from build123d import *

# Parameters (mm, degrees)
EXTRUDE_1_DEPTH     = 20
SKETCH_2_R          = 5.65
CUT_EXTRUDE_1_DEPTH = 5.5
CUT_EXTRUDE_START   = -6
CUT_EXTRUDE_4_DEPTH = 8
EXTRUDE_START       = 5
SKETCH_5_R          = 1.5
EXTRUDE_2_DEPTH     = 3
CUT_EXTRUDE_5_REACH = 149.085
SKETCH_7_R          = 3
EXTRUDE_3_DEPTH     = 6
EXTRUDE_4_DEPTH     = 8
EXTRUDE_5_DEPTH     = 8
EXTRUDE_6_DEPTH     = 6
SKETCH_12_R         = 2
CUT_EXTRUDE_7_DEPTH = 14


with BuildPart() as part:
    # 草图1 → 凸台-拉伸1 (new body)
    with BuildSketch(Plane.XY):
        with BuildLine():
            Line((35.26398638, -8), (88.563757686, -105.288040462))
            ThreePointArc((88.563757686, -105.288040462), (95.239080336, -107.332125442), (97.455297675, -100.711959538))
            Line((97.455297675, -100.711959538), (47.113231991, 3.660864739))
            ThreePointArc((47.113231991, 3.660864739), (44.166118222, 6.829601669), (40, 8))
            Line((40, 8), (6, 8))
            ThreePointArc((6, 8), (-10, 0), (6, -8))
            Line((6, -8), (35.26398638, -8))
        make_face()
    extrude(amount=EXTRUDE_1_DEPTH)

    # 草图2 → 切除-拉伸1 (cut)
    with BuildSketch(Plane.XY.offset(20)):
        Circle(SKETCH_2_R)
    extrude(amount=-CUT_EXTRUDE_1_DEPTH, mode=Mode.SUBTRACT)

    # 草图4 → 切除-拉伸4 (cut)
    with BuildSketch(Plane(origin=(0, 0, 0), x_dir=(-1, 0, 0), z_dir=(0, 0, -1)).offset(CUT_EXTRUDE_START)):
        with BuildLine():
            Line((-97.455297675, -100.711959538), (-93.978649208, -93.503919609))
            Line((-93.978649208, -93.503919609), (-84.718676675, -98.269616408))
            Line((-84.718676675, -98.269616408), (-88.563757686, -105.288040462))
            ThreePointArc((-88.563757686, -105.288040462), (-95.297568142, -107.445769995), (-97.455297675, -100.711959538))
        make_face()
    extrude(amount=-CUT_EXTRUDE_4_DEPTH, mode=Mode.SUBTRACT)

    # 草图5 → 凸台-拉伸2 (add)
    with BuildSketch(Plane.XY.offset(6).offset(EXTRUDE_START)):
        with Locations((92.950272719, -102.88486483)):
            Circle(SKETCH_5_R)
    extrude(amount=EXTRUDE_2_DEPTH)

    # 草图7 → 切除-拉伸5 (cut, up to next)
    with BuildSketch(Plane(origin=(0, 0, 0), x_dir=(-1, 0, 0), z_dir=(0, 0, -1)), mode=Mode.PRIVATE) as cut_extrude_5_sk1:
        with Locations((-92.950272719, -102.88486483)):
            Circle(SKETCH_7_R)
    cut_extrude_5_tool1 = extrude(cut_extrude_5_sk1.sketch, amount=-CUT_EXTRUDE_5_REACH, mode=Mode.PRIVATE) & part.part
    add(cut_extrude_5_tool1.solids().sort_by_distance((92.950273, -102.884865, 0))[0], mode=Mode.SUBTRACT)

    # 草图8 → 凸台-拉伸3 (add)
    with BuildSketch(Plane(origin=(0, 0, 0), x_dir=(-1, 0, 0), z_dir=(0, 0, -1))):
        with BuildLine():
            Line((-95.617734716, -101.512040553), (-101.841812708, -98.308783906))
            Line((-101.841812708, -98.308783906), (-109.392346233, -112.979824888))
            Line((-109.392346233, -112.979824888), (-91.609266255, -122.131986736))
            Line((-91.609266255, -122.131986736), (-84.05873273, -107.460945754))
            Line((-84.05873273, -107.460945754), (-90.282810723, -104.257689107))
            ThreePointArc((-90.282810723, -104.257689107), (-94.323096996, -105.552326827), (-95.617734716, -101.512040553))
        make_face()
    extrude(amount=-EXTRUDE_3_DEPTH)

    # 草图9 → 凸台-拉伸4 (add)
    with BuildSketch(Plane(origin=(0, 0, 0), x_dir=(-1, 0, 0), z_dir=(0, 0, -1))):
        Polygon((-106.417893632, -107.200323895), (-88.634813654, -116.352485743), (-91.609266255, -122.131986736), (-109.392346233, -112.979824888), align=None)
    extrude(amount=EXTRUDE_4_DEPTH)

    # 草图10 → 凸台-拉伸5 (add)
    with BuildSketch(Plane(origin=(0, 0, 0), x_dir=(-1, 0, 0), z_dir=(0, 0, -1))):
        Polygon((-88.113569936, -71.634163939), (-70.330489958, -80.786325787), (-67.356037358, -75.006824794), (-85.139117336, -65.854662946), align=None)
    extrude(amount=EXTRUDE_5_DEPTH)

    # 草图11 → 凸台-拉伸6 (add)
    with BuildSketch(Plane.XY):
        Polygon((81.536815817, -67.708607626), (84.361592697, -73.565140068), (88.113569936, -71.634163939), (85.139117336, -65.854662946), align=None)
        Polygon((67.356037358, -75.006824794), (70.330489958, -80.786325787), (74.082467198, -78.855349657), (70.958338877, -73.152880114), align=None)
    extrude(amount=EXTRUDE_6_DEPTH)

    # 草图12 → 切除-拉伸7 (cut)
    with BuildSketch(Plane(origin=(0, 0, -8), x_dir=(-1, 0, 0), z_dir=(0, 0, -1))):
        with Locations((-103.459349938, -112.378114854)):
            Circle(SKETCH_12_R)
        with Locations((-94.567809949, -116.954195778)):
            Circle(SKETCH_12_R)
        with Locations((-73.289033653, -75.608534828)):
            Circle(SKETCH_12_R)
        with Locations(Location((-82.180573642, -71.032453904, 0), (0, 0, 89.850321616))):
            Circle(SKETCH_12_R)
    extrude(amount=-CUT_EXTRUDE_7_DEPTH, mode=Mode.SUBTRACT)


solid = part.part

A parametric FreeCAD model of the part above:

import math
import FreeCAD as App
import Part
import Sketcher
from FreeCAD import Vector

doc = App.newDocument("Part")
params = doc.addObject("Spreadsheet::Sheet", "Params")
for row, (alias, value) in enumerate([
    ("sketch1_radius", "8 mm"),
    ("sketch1_radius2", "10 mm"),
    ("sketch1_width", "34 mm"),
    ("pad1_length", "20 mm"),
    ("sketch2_diameter", "11.3 mm"),
    ("pocket1_length", "5.5 mm"),
    ("sketch3_radius", "5 mm"),
    ("pocket2_length", "8 mm"),
    ("sketch4_diameter", "3 mm"),
    ("pad2_length", "3 mm"),
    ("sketch5_diameter", "6 mm"),
    ("sketch6_radius", "3 mm"),
    ("sketch6_length", "7 mm"),
    ("sketch6_length2", "16.5 mm"),
    ("pad3_length", "6 mm"),
    ("sketch7_length", "20 mm"),
    ("sketch7_length2", "6.5 mm"),
    ("pad4_length", "8 mm"),
    ("sketch8_length", "20 mm"),
    ("sketch8_length2", "6.5 mm"),
    ("pad5_length", "8 mm"),
    ("sketch9_length", "6.5 mm"),
    ("pad6_length", "6 mm"),
    ("sketch10_diameter", "4 mm"),
    ("pocket4_length", "14 mm"),
], start=1):
    params.set(f"A{row}", alias)
    params.set(f"B{row}", "=" + value)
    params.setAlias(f"B{row}", alias)

body = doc.addObject("PartDesign::Body", "Body")

# Sketch on XY plane
sketch1 = body.newObject("Sketcher::SketchObject", "Sketch")
sketch1.AttachmentSupport = (doc.getObject("XY_Plane"), [""])
sketch1.MapMode = "FlatFace"
sketch1.addGeometry([
    Part.LineSegment(Vector(35, -8, 0), Vector(89, -105, 0)),  # 0
    Part.ArcOfCircle(Part.Circle(Vector(93, -103, 0), Vector(0, 0, 1), 5), math.radians(-151), math.radians(26)),  # 1
    Part.LineSegment(Vector(97, -101, 0), Vector(47, 4, 0)),  # 2
    Part.ArcOfCircle(Part.Circle(Vector(40, 0, 0), Vector(0, 0, 1), 8), math.radians(27), math.radians(90)),  # 3
    Part.LineSegment(Vector(40, 8, 0), Vector(6, 8, 0)),  # 4
    Part.ArcOfCircle(Part.Circle(Vector(0, 0, 0), Vector(0, 0, 1), 10), math.radians(53), math.radians(307)),  # 5
    Part.LineSegment(Vector(6, -8, 0), Vector(35, -8, 0)),  # 6
], False)
sketch1.addConstraint([
    Sketcher.Constraint("Tangent", 0, 2, 1, 1),
    Sketcher.Constraint("Tangent", 1, 2, 2, 1),
    Sketcher.Constraint("Coincident", 2, 2, 3, 1),
    Sketcher.Constraint("Tangent", 3, 2, 4, 1),
    Sketcher.Constraint("Coincident", 4, 2, 5, 1),
    Sketcher.Constraint("Coincident", 5, 2, 6, 1),
    Sketcher.Constraint("Coincident", 6, 2, 0, 1),
    Sketcher.Constraint("Horizontal", 4),
    Sketcher.Constraint("Horizontal", 6),
    Sketcher.Constraint("Coincident", 5, 3, -1, 1),
    Sketcher.Constraint("PointOnObject", 3, 3, -1),
    Sketcher.Constraint("Vertical", 4, 2, 5, 2),
    Sketcher.Constraint("Radius", 3, 8.0),
    Sketcher.Constraint("Radius", 5, 10.0),
    Sketcher.Constraint("DistanceX", 4, 2, 4, 1, 34.0),
    Sketcher.Constraint("Radius", 1, 5.001676),
    Sketcher.Constraint("Distance", 0, 110.931639),
    Sketcher.Constraint("Distance", 2, 115.879291),
    Sketcher.Constraint("DistanceX", 6, 1, 6, 2, 29.263986),
    Sketcher.Constraint("DistanceY", 0, 2, -1, 1, 105.28804),
])
sketch1.setExpression("Constraints[12]", "Params.sketch1_radius")
sketch1.setExpression("Constraints[13]", "Params.sketch1_radius2")
sketch1.setExpression("Constraints[14]", "Params.sketch1_width")
pad1 = body.newObject("PartDesign::Pad", "Pad")
pad1.Profile = sketch1
pad1.setExpression("Length", "Params.pad1_length")

# Sketch on XY plane
sketch2 = body.newObject("Sketcher::SketchObject", "Sketch001")
sketch2.AttachmentSupport = (doc.getObject("XY_Plane"), [""])
sketch2.MapMode = "FlatFace"
sketch2.AttachmentOffset = App.Placement(Vector(0, 0, 20), App.Rotation())
sketch2.addGeometry(Part.Circle(Vector(0, 0, 0), Vector(0, 0, 1), 6), False)
sketch2.addConstraint([
    Sketcher.Constraint("Coincident", 0, 3, -1, 1),
    Sketcher.Constraint("Diameter", 0, 11.3),
])
sketch2.setExpression("Constraints[1]", "Params.sketch2_diameter")
pocket1 = body.newObject("PartDesign::Pocket", "Pocket")
pocket1.Profile = sketch2
pocket1.setExpression("Length", "Params.pocket1_length")

# Sketch on XY plane
sketch3 = body.newObject("Sketcher::SketchObject", "Sketch002")
sketch3.AttachmentSupport = (doc.getObject("XY_Plane"), [""])
sketch3.MapMode = "FlatFace"
sketch3.AttachmentOffset = App.Placement(Vector(0, 0, 6), App.Rotation())
sketch3.addGeometry([
    Part.LineSegment(Vector(94, -94, 0), Vector(97, -101, 0)),
    Part.ArcOfCircle(Part.Circle(Vector(93, -103, 0), Vector(0, 0, 1), 5), math.radians(-153), math.radians(27)),
    Part.LineSegment(Vector(89, -105, 0), Vector(85, -98, 0)),
    Part.LineSegment(Vector(85, -98, 0), Vector(94, -94, 0)),
], False)
sketch3.addConstraint([
    Sketcher.Constraint("Coincident", 0, 2, 1, 2),
    Sketcher.Constraint("Coincident", 1, 1, 2, 1),
    Sketcher.Constraint("Coincident", 2, 2, 3, 1),
    Sketcher.Constraint("Coincident", 3, 2, 0, 1),
    Sketcher.Constraint("Equal", 0, 2),
    Sketcher.Constraint("Radius", 1, 5.0),
    Sketcher.Constraint("DistanceY", 1, 3, -1, 1, 103.0),
    Sketcher.Constraint("DistanceY", 0, 2, -1, 1, 100.71196),
    Sketcher.Constraint("DistanceY", 1, 1, -1, 1, 105.28804),
    Sketcher.Constraint("DistanceX", -1, 1, 3, 2, 93.978649),
    Sketcher.Constraint("DistanceY", 3, 2, -1, 1, 93.50392),
    Sketcher.Constraint("DistanceX", 2, 2, 1, 1, 3.845081),
    Sketcher.Constraint("DistanceX", 3, 2, 0, 2, 3.476648),
])
sketch3.setExpression("Constraints[5]", "Params.sketch3_radius")
pocket2 = body.newObject("PartDesign::Pocket", "Pocket001")
pocket2.Profile = sketch3
pocket2.setExpression("Length", "Params.pocket2_length")
pocket2.Reversed = True

# Sketch on XY plane
sketch4 = body.newObject("Sketcher::SketchObject", "Sketch003")
sketch4.AttachmentSupport = (doc.getObject("XY_Plane"), [""])
sketch4.MapMode = "FlatFace"
sketch4.AttachmentOffset = App.Placement(Vector(0, 0, 11), App.Rotation())
sketch4.addGeometry(Part.Circle(Vector(93, -102.9, 0), Vector(0, 0, 1), 1.5), False)
sketch4.addConstraint([
    Sketcher.Constraint("Diameter", 0, 3.0),
    Sketcher.Constraint("DistanceX", -1, 1, 0, 3, 92.950273),
    Sketcher.Constraint("DistanceY", 0, 3, -1, 1, 102.884865),
])
sketch4.setExpression("Constraints[0]", "Params.sketch4_diameter")
pad2 = body.newObject("PartDesign::Pad", "Pad001")
pad2.Profile = sketch4
pad2.setExpression("Length", "Params.pad2_length")

# Sketch on XY plane
sketch5 = body.newObject("Sketcher::SketchObject", "Sketch004")
sketch5.AttachmentSupport = (doc.getObject("XY_Plane"), [""])
sketch5.MapMode = "FlatFace"
sketch5.addGeometry(Part.Circle(Vector(93, -102.9, 0), Vector(0, 0, 1), 3), False)
sketch5.addConstraint([
    Sketcher.Constraint("Diameter", 0, 6.0),
    Sketcher.Constraint("DistanceX", -1, 1, 0, 3, 92.950273),
    Sketcher.Constraint("DistanceY", 0, 3, -1, 1, 102.884865),
])
sketch5.setExpression("Constraints[0]", "Params.sketch5_diameter")
pocket3 = body.newObject("PartDesign::Pocket", "Pocket002")
pocket3.Profile = sketch5
pocket3.Type = "UpToFirst"
pocket3.Reversed = True

# Sketch on XY plane
sketch6 = body.newObject("Sketcher::SketchObject", "Sketch005")
sketch6.AttachmentSupport = (doc.getObject("XY_Plane"), [""])
sketch6.MapMode = "FlatFace"
sketch6.addGeometry([
    Part.LineSegment(Vector(95.6, -101.5, 0), Vector(101.8, -98.3, 0)),  # 0
    Part.LineSegment(Vector(101.8, -98.3, 0), Vector(109.4, -113, 0)),  # 1
    Part.LineSegment(Vector(109.4, -113, 0), Vector(91.6, -122.1, 0)),  # 2
    Part.LineSegment(Vector(91.6, -122.1, 0), Vector(84.1, -107.5, 0)),  # 3
    Part.LineSegment(Vector(84.1, -107.5, 0), Vector(90.3, -104.3, 0)),  # 4
    Part.ArcOfCircle(Part.Circle(Vector(93, -102.9, 0), Vector(0, 0, 1), 3), math.radians(-153), math.radians(27)),  # 5
], False)
sketch6.addConstraint([
    Sketcher.Constraint("Coincident", 0, 2, 1, 1),
    Sketcher.Constraint("Coincident", 1, 2, 2, 1),
    Sketcher.Constraint("Coincident", 2, 2, 3, 1),
    Sketcher.Constraint("Coincident", 3, 2, 4, 1),
    Sketcher.Constraint("Coincident", 4, 2, 5, 1),
    Sketcher.Constraint("Coincident", 5, 2, 0, 1),
    Sketcher.Constraint("Perpendicular", 0, 1),
    Sketcher.Constraint("Perpendicular", 1, 2),
    Sketcher.Constraint("Perpendicular", 2, 3),
    Sketcher.Constraint("Perpendicular", 3, 4),
    Sketcher.Constraint("Equal", 1, 3),
    Sketcher.Constraint("Equal", 0, 4),
    Sketcher.Constraint("Radius", 5, 3.0),
    Sketcher.Constraint("Distance", 0, 7.0),
    Sketcher.Constraint("Distance", 1, 16.5),
    Sketcher.Constraint("DistanceX", 4, 2, 0, 2, 11.559002),
    Sketcher.Constraint("DistanceX", -1, 1, 4, 2, 90.282811),
    Sketcher.Constraint("DistanceY", 4, 2, -1, 1, 104.257689),
    Sketcher.Constraint("DistanceX", 5, 3, 0, 2, 8.89154),
])
sketch6.setExpression("Constraints[12]", "Params.sketch6_radius")
sketch6.setExpression("Constraints[13]", "Params.sketch6_length")
sketch6.setExpression("Constraints[14]", "Params.sketch6_length2")
pad3 = body.newObject("PartDesign::Pad", "Pad002")
pad3.Profile = sketch6
pad3.setExpression("Length", "Params.pad3_length")

# Sketch on XY plane
sketch7 = body.newObject("Sketcher::SketchObject", "Sketch006")
sketch7.AttachmentSupport = (doc.getObject("XY_Plane"), [""])
sketch7.MapMode = "FlatFace"
sketch7.addGeometry([
    Part.LineSegment(Vector(89, -116, 0), Vector(106, -107, 0)),
    Part.LineSegment(Vector(106, -107, 0), Vector(109, -113, 0)),
    Part.LineSegment(Vector(109, -113, 0), Vector(92, -122, 0)),
    Part.LineSegment(Vector(92, -122, 0), Vector(89, -116, 0)),
], False)
sketch7.addConstraint([
    Sketcher.Constraint("Coincident", 0, 2, 1, 1),
    Sketcher.Constraint("Coincident", 1, 2, 2, 1),
    Sketcher.Constraint("Coincident", 2, 2, 3, 1),
    Sketcher.Constraint("Coincident", 3, 2, 0, 1),
    Sketcher.Constraint("Perpendicular", 0, 1),
    Sketcher.Constraint("Perpendicular", 1, 2),
    Sketcher.Constraint("Perpendicular", 2, 3),
    Sketcher.Constraint("Distance", 0, 20.0),
    Sketcher.Constraint("Distance", 1, 6.5),
    Sketcher.Constraint("DistanceY", 1, 2, 0, 2, 5.779501),
    Sketcher.Constraint("DistanceX", -1, 1, 0, 2, 106.417894),
    Sketcher.Constraint("DistanceY", 0, 2, -1, 1, 107.200324),
])
sketch7.setExpression("Constraints[7]", "Params.sketch7_length")
sketch7.setExpression("Constraints[8]", "Params.sketch7_length2")
pad4 = body.newObject("PartDesign::Pad", "Pad003")
pad4.Profile = sketch7
pad4.setExpression("Length", "Params.pad4_length")
pad4.Reversed = True

# Sketch on XY plane
sketch8 = body.newObject("Sketcher::SketchObject", "Sketch007")
sketch8.AttachmentSupport = (doc.getObject("XY_Plane"), [""])
sketch8.MapMode = "FlatFace"
sketch8.addGeometry([
    Part.LineSegment(Vector(88, -72, 0), Vector(70, -81, 0)),
    Part.LineSegment(Vector(70, -81, 0), Vector(67, -75, 0)),
    Part.LineSegment(Vector(67, -75, 0), Vector(85, -66, 0)),
    Part.LineSegment(Vector(85, -66, 0), Vector(88, -72, 0)),
], False)
sketch8.addConstraint([
    Sketcher.Constraint("Coincident", 0, 2, 1, 1),
    Sketcher.Constraint("Coincident", 1, 2, 2, 1),
    Sketcher.Constraint("Coincident", 2, 2, 3, 1),
    Sketcher.Constraint("Coincident", 3, 2, 0, 1),
    Sketcher.Constraint("Perpendicular", 0, 1),
    Sketcher.Constraint("Perpendicular", 1, 2),
    Sketcher.Constraint("Perpendicular", 2, 3),
    Sketcher.Constraint("Distance", 0, 20.0),
    Sketcher.Constraint("Distance", 1, 6.5),
    Sketcher.Constraint("DistanceY", 0, 2, 1, 2, 5.779501),
    Sketcher.Constraint("DistanceX", -1, 1, 0, 2, 70.33049),
    Sketcher.Constraint("DistanceY", 0, 2, -1, 1, 80.786326),
])
sketch8.setExpression("Constraints[7]", "Params.sketch8_length")
sketch8.setExpression("Constraints[8]", "Params.sketch8_length2")
pad5 = body.newObject("PartDesign::Pad", "Pad004")
pad5.Profile = sketch8
pad5.setExpression("Length", "Params.pad5_length")
pad5.Reversed = True

# Sketch on XY plane
sketch9 = body.newObject("Sketcher::SketchObject", "Sketch008")
sketch9.AttachmentSupport = (doc.getObject("XY_Plane"), [""])
sketch9.MapMode = "FlatFace"
sketch9.addGeometry([
    Part.LineSegment(Vector(81.5, -67.7, 0), Vector(84.4, -73.6, 0)),  # 0
    Part.LineSegment(Vector(84.4, -73.6, 0), Vector(88.1, -71.6, 0)),  # 1
    Part.LineSegment(Vector(88.1, -71.6, 0), Vector(85.1, -65.9, 0)),  # 2
    Part.LineSegment(Vector(85.1, -65.9, 0), Vector(81.5, -67.7, 0)),  # 3
    Part.LineSegment(Vector(67.4, -75, 0), Vector(70.3, -80.8, 0)),  # 4
    Part.LineSegment(Vector(70.3, -80.8, 0), Vector(74.1, -78.9, 0)),  # 5
    Part.LineSegment(Vector(74.1, -78.9, 0), Vector(71, -73.2, 0)),  # 6
    Part.LineSegment(Vector(71, -73.2, 0), Vector(67.4, -75, 0)),  # 7
], False)
sketch9.addConstraint([
    Sketcher.Constraint("Coincident", 0, 2, 1, 1),
    Sketcher.Constraint("Coincident", 1, 2, 2, 1),
    Sketcher.Constraint("Coincident", 2, 2, 3, 1),
    Sketcher.Constraint("Coincident", 3, 2, 0, 1),
    Sketcher.Constraint("Coincident", 4, 2, 5, 1),
    Sketcher.Constraint("Coincident", 5, 2, 6, 1),
    Sketcher.Constraint("Coincident", 6, 2, 7, 1),
    Sketcher.Constraint("Coincident", 7, 2, 4, 1),
    Sketcher.Constraint("Perpendicular", 1, 2),
    Sketcher.Constraint("Perpendicular", 2, 3),
    Sketcher.Constraint("Perpendicular", 3, 4),
    Sketcher.Constraint("Perpendicular", 4, 5),
    Sketcher.Constraint("Parallel", 5, 7),
    Sketcher.Constraint("Equal", 2, 4),
    Sketcher.Constraint("Equal", 1, 5),
    Sketcher.Constraint("Equal", 0, 6),
    Sketcher.Constraint("Distance", 2, 6.5),
    Sketcher.Constraint("DistanceY", 1, 2, 2, 2, 5.779501),
    Sketcher.Constraint("DistanceX", 3, 2, 2, 2, 3.602302),
    Sketcher.Constraint("Distance", 0, 6.502179),
    Sketcher.Constraint("DistanceY", 0, 2, -1, 1, 73.56514),
    Sketcher.Constraint("DistanceX", -1, 1, 1, 2, 88.11357),
    Sketcher.Constraint("DistanceX", -1, 1, 4, 2, 70.33049),
    Sketcher.Constraint("DistanceY", 5, 2, -1, 1, 78.85535),
])
sketch9.setExpression("Constraints[16]", "Params.sketch9_length")
pad6 = body.newObject("PartDesign::Pad", "Pad005")
pad6.Profile = sketch9
pad6.setExpression("Length", "Params.pad6_length")

# Sketch on XY plane
sketch10 = body.newObject("Sketcher::SketchObject", "Sketch009")
sketch10.AttachmentSupport = (doc.getObject("XY_Plane"), [""])
sketch10.MapMode = "FlatFace"
sketch10.AttachmentOffset = App.Placement(Vector(0, 0, -8), App.Rotation())
sketch10.addGeometry([
    Part.Circle(Vector(103.5, -112.4, 0), Vector(0, 0, 1), 2),
    Part.Circle(Vector(94.6, -117, 0), Vector(0, 0, 1), 2),
    Part.Circle(Vector(73.3, -75.6, 0), Vector(0, 0, 1), 2),
    Part.Circle(Vector(82.2, -71, 0), Vector(0, 0, 1), 2),
], False)
sketch10.addConstraint([
    Sketcher.Constraint("Equal", 0, 1),
    Sketcher.Constraint("Equal", 1, 2),
    Sketcher.Constraint("Equal", 2, 3),
    Sketcher.Constraint("Diameter", 0, 4.0),
    Sketcher.Constraint("DistanceX", -1, 1, 0, 3, 103.45935),
    Sketcher.Constraint("DistanceX", -1, 1, 1, 3, 94.56781),
    Sketcher.Constraint("DistanceY", 1, 3, 0, 3, 4.576081),
    Sketcher.Constraint("DistanceY", 1, 3, 2, 3, 41.345661),
    Sketcher.Constraint("DistanceX", 2, 3, 3, 3, 8.89154),
    Sketcher.Constraint("DistanceY", 2, 3, 3, 3, 4.576081),
    Sketcher.Constraint("DistanceY", 0, 3, -1, 1, 112.378115),
    Sketcher.Constraint("DistanceX", -1, 1, 2, 3, 73.289034),
])
sketch10.setExpression("Constraints[3]", "Params.sketch10_diameter")
pocket4 = body.newObject("PartDesign::Pocket", "Pocket003")
pocket4.Profile = sketch10
pocket4.setExpression("Length", "Params.pocket4_length")
pocket4.Reversed = True

doc.recompute()
